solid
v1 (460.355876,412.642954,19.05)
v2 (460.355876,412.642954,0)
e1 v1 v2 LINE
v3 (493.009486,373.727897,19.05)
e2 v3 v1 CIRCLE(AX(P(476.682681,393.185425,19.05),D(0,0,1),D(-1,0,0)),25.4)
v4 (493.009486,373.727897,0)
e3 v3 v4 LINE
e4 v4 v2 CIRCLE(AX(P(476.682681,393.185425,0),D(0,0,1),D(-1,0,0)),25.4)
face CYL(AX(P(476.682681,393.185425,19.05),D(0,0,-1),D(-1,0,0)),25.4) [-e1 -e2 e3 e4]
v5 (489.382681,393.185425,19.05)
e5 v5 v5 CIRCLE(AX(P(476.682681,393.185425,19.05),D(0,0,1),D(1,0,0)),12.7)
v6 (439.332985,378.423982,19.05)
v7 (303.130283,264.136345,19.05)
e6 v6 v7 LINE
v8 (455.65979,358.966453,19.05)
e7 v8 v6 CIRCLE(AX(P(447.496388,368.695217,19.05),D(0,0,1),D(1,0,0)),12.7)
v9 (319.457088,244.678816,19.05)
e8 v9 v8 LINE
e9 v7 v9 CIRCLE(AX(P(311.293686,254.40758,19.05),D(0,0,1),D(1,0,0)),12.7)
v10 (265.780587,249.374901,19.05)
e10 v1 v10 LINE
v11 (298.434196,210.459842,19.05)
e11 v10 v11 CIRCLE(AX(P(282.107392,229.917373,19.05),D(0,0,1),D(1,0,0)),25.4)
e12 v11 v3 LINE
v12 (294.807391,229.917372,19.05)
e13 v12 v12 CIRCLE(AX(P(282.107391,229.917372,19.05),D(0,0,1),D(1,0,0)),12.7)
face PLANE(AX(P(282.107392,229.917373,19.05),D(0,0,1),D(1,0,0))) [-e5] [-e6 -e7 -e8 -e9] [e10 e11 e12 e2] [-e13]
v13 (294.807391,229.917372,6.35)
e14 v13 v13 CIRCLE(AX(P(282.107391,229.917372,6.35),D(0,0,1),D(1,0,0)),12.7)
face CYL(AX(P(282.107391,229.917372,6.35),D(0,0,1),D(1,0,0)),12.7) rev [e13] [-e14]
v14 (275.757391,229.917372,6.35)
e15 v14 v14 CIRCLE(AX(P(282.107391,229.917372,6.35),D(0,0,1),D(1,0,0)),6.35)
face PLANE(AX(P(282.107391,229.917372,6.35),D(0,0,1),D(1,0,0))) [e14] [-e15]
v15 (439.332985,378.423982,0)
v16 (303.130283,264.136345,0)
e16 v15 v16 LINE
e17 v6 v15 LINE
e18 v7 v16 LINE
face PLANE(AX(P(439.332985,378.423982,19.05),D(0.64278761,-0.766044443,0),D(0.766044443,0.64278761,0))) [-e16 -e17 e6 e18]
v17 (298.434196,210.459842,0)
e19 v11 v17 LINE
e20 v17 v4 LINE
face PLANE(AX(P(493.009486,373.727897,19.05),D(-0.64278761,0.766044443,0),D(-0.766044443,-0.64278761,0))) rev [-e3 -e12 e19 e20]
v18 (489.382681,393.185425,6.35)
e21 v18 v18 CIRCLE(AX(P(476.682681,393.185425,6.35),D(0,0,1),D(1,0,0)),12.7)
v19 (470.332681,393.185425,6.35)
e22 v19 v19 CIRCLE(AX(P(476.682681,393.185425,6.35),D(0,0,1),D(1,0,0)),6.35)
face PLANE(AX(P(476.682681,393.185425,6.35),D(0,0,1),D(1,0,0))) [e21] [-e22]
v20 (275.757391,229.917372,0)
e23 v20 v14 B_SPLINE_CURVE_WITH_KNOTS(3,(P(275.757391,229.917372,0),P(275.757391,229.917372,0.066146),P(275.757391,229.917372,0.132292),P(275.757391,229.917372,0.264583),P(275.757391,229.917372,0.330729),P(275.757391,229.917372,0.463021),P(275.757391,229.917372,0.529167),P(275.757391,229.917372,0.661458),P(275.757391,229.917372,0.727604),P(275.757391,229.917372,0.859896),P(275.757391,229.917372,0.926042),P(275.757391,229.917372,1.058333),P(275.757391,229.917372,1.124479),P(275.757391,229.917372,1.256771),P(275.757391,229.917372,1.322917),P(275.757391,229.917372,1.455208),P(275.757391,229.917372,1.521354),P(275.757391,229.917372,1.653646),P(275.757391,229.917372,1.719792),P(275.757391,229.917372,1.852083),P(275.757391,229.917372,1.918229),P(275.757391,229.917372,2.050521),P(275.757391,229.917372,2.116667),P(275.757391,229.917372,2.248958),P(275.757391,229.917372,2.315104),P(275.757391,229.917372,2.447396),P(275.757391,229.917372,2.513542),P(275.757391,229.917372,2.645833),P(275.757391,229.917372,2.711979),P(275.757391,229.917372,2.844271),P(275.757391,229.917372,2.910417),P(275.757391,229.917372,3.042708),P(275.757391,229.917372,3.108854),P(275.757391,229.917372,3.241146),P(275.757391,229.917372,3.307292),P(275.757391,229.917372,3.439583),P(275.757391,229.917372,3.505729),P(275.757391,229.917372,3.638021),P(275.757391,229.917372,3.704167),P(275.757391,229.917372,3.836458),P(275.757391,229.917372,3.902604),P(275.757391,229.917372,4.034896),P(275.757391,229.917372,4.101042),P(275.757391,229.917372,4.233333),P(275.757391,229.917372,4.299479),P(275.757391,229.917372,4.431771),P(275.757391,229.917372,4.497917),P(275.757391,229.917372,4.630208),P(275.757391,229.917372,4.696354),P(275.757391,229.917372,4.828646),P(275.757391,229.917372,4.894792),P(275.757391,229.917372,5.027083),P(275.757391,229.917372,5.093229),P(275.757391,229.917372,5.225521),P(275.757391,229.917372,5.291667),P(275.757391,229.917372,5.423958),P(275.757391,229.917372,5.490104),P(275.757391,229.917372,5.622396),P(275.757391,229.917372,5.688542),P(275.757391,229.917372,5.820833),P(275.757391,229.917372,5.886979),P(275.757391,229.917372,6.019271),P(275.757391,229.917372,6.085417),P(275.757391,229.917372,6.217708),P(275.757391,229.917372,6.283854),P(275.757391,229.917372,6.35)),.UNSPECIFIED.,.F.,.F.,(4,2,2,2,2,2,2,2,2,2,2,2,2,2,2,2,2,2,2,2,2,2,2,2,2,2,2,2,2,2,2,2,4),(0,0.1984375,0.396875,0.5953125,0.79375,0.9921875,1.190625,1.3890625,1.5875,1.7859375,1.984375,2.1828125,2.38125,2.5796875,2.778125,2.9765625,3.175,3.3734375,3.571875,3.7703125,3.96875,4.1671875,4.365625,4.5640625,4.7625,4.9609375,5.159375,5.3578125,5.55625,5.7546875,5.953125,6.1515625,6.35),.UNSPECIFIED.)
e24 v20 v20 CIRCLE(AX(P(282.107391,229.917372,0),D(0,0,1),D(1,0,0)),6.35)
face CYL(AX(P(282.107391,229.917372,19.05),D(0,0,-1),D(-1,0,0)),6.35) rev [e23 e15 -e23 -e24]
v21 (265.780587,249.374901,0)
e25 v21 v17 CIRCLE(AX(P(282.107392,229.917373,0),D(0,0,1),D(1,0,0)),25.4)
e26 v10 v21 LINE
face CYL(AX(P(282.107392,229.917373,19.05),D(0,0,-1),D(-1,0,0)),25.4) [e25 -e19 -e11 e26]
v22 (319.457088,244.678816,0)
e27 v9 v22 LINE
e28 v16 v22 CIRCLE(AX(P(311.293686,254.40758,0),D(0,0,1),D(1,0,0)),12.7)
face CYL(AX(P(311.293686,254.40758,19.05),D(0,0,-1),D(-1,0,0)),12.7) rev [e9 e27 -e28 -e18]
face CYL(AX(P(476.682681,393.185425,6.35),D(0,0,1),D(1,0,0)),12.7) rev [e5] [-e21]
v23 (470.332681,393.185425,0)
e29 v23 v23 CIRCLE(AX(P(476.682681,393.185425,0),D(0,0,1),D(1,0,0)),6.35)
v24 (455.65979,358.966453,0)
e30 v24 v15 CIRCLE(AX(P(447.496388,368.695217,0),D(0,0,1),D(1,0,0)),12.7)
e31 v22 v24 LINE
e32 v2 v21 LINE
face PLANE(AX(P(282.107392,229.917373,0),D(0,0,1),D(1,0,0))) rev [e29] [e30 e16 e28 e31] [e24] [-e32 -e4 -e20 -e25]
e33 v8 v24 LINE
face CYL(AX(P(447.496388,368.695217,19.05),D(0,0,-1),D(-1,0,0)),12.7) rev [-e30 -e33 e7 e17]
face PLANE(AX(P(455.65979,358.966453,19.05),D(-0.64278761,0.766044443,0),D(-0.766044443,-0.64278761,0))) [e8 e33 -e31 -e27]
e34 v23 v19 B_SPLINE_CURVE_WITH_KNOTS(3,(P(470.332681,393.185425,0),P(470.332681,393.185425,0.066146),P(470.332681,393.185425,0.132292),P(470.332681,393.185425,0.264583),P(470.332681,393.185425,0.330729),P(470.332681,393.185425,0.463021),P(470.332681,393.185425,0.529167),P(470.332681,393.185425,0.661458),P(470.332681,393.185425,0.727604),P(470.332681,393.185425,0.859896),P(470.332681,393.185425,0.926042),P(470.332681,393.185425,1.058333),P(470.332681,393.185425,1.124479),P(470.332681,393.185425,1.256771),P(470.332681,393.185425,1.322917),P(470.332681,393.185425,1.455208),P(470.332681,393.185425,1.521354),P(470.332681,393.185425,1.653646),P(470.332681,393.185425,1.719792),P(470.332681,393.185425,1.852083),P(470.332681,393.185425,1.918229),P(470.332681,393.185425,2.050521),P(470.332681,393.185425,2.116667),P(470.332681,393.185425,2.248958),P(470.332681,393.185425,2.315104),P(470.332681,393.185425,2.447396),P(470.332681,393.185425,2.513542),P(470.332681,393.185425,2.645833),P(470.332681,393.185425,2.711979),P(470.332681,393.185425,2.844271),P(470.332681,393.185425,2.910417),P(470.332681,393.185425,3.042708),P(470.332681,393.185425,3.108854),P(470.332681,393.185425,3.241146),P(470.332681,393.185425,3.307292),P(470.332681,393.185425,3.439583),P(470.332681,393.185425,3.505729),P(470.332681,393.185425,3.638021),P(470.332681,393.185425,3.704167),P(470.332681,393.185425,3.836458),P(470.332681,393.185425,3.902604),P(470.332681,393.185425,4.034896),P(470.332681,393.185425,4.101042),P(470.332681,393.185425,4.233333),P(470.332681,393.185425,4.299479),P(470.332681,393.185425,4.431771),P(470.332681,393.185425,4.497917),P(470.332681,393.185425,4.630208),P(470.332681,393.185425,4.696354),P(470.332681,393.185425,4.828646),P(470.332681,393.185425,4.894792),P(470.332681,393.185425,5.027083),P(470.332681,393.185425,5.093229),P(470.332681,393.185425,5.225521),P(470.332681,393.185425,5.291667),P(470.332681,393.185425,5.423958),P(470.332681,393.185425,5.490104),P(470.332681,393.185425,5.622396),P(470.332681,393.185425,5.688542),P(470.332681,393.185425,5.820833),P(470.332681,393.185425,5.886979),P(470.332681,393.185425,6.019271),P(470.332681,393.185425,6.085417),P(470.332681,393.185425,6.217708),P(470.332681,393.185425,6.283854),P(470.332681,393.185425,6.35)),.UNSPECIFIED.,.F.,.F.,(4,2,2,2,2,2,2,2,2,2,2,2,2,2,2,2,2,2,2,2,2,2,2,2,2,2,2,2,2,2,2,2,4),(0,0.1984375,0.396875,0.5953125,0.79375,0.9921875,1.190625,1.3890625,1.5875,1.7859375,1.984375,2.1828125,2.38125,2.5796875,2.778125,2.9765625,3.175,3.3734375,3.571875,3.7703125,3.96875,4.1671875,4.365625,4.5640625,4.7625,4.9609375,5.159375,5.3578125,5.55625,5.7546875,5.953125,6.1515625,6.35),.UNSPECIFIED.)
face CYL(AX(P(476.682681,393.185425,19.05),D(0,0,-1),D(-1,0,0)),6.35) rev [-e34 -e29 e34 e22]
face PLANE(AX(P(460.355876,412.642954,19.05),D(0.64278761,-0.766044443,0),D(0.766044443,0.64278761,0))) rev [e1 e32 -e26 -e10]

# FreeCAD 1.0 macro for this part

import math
import FreeCAD as App
import Part
import Sketcher

V = App.Vector
Q = App.Units.Quantity

doc = App.newDocument("Part")
params = doc.addObject("Spreadsheet::Sheet", "Params")
for row, (alias, value) in enumerate([
    ("sketch1_radius", "1 in"),
    ("sketch1_diameter", "0.5 in"),
    ("sketch1_radius2", "0.5 in"),
    ("sketch1_length", "10 in"),
    ("sketch1_length2", "7 in"),
    ("pad1_length", "0.75 in"),
    ("sketch2_diameter", "1 in"),
    ("pocket1_length", "0.5 in"),
], start=1):
    params.set(f"A{row}", alias)
    params.set(f"B{row}", "=" + value)
    params.setAlias(f"B{row}", alias)

body = doc.addObject("PartDesign::Body", "Body")

sketch1 = doc.addObject("Sketcher::SketchObject", "Sketch")
body.addObject(sketch1)
sketch1.AttachmentSupport = (doc.XY_Plane, [""])
sketch1.MapMode = "FlatFace"
sketch1.addGeometry(Part.LineSegment(V(460, 413, 0), V(266, 249, 0)), False)
sketch1.addGeometry(Part.ArcOfCircle(Part.Circle(V(282, 230, 0), V(0, 0, 1), 25), math.radians(130), math.radians(310)), False)
sketch1.addGeometry(Part.LineSegment(V(298, 210, 0), V(493, 374, 0)), False)
sketch1.addGeometry(Part.ArcOfCircle(Part.Circle(V(477, 393, 0), V(0, 0, 1), 25), math.radians(-50), math.radians(130)), False)
sketch1.addGeometry(Part.Circle(V(282, 230, 0), V(0, 0, 1), 6), False)
sketch1.addGeometry(Part.ArcOfCircle(Part.Circle(V(447, 369, 0), V(0, 0, 1), 13), math.radians(-50), math.radians(130)), False)
sketch1.addGeometry(Part.LineSegment(V(456, 359, 0), V(319, 245, 0)), False)
sketch1.addGeometry(Part.ArcOfCircle(Part.Circle(V(311, 254, 0), V(0, 0, 1), 13), math.radians(130), math.radians(310)), False)
sketch1.addGeometry(Part.LineSegment(V(303, 264, 0), V(439, 378, 0)), False)
sketch1.addGeometry(Part.Circle(V(477, 393, 0), V(0, 0, 1), 6), False)
sketch1.addConstraint(Sketcher.Constraint("Tangent", 0, 2, 1, 1))
sketch1.addConstraint(Sketcher.Constraint("Tangent", 1, 2, 2, 1))
sketch1.addConstraint(Sketcher.Constraint("Tangent", 2, 2, 3, 1))
sketch1.addConstraint(Sketcher.Constraint("Tangent", 3, 2, 0, 1))
sketch1.addConstraint(Sketcher.Constraint("Tangent", 5, 1, 6, 1))
sketch1.addConstraint(Sketcher.Constraint("Tangent", 6, 2, 7, 2))
sketch1.addConstraint(Sketcher.Constraint("Tangent", 7, 1, 8, 1))
sketch1.addConstraint(Sketcher.Constraint("Tangent", 8, 2, 5, 2))
sketch1.addConstraint(Sketcher.Constraint("Coincident", 4, 3, 1, 3))
sketch1.addConstraint(Sketcher.Constraint("Coincident", 9, 3, 3, 3))
sketch1.addConstraint(Sketcher.Constraint("Equal", 1, 3))
sketch1.addConstraint(Sketcher.Constraint("Equal", 5, 7))
sketch1.addConstraint(Sketcher.Constraint("Equal", 4, 9))
sketch1.addConstraint(Sketcher.Constraint("Parallel", 2, 6))
sketch1.addConstraint(Sketcher.Constraint("Radius", 1, Q("1 in")))
sketch1.addConstraint(Sketcher.Constraint("Diameter", 4, Q("0.5 in")))
sketch1.addConstraint(Sketcher.Constraint("Radius", 5, Q("0.5 in")))
sketch1.addConstraint(Sketcher.Constraint("Distance", 0, Q("10 in")))
sketch1.addConstraint(Sketcher.Constraint("Distance", 6, Q("7 in")))
sketch1.addConstraint(Sketcher.Constraint("Angle", 0, Q("-140 deg")))
sketch1.addConstraint(Sketcher.Constraint("DistanceY", -1, 1, 0, 2, Q("249.374901 mm")))
sketch1.addConstraint(Sketcher.Constraint("DistanceX", 0, 2, 7, 3, Q("45.513099 mm")))
sketch1.addConstraint(Sketcher.Constraint("DistanceY", 5, 1, 3, 2, Q("53.676501 mm")))
sketch1.addConstraint(Sketcher.Constraint("DistanceX", -1, 1, 3, 3, Q("476.682681 mm")))
sketch1.setExpression("Constraints[14]", "Params.sketch1_radius")
sketch1.setExpression("Constraints[15]", "Params.sketch1_diameter")
sketch1.setExpression("Constraints[16]", "Params.sketch1_radius2")
sketch1.setExpression("Constraints[17]", "Params.sketch1_length")
sketch1.setExpression("Constraints[18]", "Params.sketch1_length2")
pad1 = doc.addObject("PartDesign::Pad", "Pad")
body.addObject(pad1)
pad1.Profile = sketch1
pad1.setExpression("Length", "Params.pad1_length")

sketch2 = doc.addObject("Sketcher::SketchObject", "Sketch001")
body.addObject(sketch2)
sketch2.AttachmentSupport = (doc.XY_Plane, [""])
sketch2.MapMode = "FlatFace"
sketch2.AttachmentOffset = App.Placement(V(0, 0, 0.75 * 25.4), App.Rotation())
sketch2.addGeometry(Part.Circle(V(282, 230, 0), V(0, 0, 1), 13), False)
sketch2.addGeometry(Part.Circle(V(477, 393, 0), V(0, 0, 1), 13), False)
sketch2.addConstraint(Sketcher.Constraint("Equal", 0, 1))
sketch2.addConstraint(Sketcher.Constraint("Diameter", 0, Q("1 in")))
sketch2.addConstraint(Sketcher.Constraint("DistanceX", -1, 1, 0, 3, Q("282.107391 mm")))
sketch2.addConstraint(Sketcher.Constraint("DistanceY", -1, 1, 0, 3, Q("229.917372 mm")))
sketch2.addConstraint(Sketcher.Constraint("DistanceX", -1, 1, 1, 3, Q("476.682681 mm")))
sketch2.addConstraint(Sketcher.Constraint("DistanceY", -1, 1, 1, 3, Q("393.185425 mm")))
sketch2.setExpression("Constraints[1]", "Params.sketch2_diameter")
pocket1 = doc.addObject("PartDesign::Pocket", "Pocket")
body.addObject(pocket1)
pocket1.Profile = sketch2
pocket1.setExpression("Length", "Params.pocket1_length")

doc.recompute()
